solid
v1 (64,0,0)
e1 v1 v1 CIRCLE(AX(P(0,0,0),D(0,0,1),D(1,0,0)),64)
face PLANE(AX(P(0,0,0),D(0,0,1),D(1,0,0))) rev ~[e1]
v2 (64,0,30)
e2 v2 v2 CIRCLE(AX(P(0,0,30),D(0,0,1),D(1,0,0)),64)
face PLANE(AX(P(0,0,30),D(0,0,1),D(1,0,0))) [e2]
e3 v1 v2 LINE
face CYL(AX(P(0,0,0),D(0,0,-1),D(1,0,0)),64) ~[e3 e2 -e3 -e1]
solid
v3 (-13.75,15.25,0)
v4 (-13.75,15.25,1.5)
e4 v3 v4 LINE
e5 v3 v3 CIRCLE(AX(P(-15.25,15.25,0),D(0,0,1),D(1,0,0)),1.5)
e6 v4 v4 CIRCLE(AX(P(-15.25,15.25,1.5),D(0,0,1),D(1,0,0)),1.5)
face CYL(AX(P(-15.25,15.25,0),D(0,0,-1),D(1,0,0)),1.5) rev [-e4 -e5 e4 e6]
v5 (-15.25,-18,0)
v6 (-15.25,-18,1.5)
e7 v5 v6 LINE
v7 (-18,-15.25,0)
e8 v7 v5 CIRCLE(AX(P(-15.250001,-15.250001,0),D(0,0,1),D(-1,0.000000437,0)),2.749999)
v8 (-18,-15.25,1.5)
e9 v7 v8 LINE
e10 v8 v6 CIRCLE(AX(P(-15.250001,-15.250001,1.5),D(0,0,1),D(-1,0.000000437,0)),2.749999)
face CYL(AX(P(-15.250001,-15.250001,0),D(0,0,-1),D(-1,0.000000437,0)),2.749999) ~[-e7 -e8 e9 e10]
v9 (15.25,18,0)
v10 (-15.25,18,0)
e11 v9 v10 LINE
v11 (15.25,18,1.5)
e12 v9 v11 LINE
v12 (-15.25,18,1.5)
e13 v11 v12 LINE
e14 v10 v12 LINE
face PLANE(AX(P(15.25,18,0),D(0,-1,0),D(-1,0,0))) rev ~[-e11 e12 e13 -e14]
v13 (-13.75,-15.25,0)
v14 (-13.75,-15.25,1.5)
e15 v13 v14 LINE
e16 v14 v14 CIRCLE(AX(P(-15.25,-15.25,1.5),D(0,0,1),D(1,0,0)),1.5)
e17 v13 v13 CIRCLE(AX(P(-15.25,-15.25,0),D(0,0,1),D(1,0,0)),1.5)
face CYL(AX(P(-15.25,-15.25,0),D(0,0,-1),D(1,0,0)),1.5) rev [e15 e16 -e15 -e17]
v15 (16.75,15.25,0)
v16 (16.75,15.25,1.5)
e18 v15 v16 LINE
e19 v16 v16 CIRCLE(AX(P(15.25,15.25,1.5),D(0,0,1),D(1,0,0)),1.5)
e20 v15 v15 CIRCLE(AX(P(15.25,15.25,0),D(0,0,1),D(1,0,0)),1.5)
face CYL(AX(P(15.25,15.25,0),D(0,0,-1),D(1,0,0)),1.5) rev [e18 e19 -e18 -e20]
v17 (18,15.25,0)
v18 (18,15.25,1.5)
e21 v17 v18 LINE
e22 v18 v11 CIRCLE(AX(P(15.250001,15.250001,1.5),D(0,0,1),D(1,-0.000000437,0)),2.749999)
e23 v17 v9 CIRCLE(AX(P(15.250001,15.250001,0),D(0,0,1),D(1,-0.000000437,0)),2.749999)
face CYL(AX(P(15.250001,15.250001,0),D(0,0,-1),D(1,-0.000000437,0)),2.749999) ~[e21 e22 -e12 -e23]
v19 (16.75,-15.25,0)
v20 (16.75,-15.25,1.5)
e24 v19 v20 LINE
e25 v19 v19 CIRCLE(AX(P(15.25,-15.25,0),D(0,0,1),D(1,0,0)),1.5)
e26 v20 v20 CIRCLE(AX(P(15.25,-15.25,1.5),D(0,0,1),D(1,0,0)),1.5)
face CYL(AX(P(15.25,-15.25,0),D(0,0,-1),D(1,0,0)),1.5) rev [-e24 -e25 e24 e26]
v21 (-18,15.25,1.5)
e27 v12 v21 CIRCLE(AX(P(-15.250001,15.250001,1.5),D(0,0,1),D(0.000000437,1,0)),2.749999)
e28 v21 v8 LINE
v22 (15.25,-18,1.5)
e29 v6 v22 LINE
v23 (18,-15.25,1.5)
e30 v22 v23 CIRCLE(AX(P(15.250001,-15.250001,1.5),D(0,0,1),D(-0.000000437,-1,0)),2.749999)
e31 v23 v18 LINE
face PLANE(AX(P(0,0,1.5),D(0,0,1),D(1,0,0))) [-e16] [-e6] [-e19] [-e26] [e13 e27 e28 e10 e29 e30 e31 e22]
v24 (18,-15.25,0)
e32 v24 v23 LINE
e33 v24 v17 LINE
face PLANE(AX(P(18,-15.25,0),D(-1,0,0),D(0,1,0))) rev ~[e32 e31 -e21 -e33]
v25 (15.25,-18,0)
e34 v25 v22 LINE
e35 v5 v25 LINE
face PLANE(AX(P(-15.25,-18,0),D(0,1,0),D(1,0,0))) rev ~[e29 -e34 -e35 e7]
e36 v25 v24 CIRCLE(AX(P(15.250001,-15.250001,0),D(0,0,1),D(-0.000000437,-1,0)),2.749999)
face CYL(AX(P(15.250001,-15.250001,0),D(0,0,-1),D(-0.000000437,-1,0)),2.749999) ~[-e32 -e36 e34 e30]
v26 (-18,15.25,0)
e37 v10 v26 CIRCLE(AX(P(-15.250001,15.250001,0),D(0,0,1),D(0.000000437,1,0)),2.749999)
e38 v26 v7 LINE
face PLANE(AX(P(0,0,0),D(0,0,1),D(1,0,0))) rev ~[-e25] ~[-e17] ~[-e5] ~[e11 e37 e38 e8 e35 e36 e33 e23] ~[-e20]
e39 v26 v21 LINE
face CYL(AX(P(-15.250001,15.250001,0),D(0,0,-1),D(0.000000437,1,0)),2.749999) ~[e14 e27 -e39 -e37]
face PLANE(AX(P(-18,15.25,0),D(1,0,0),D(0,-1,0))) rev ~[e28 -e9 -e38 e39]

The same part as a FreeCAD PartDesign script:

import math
import FreeCAD as App
import Part
import Sketcher

V = App.Vector

doc = App.newDocument("Part")
body = doc.addObject("PartDesign::Body", "Body")

# Sketch on XY plane
sketch1 = body.newObject("Sketcher::SketchObject", "Sketch")
sketch1.AttachmentSupport = (doc.getObject("XY_Plane"), [""])
sketch1.MapMode = "FlatFace"
sketch1.addGeometry(Part.ArcOfCircle(Part.Circle(V(-15.3, 15.3, 0), V(0, 0, 1), 2.7), math.radians(90), math.radians(180)), False)
sketch1.addGeometry(Part.LineSegment(V(-18, 15.2, 0), V(-18, -15.2, 0)), False)
sketch1.addGeometry(Part.ArcOfCircle(Part.Circle(V(-15.3, -15.3, 0), V(0, 0, 1), 2.7), math.radians(180), math.radians(270)), False)
sketch1.addGeometry(Part.LineSegment(V(-15.2, -18, 0), V(15.2, -18, 0)), False)
sketch1.addGeometry(Part.ArcOfCircle(Part.Circle(V(15.3, -15.3, 0), V(0, 0, 1), 2.7), math.radians(-90), math.radians(0)), False)
sketch1.addGeometry(Part.LineSegment(V(18, -15.2, 0), V(18, 15.2, 0)), False)
sketch1.addGeometry(Part.ArcOfCircle(Part.Circle(V(15.3, 15.3, 0), V(0, 0, 1), 2.7), math.radians(0), math.radians(90)), False)
sketch1.addGeometry(Part.LineSegment(V(15.2, 18, 0), V(-15.2, 18, 0)), False)
sketch1.addGeometry(Part.Circle(V(-15.2, -15.2, 0), V(0, 0, 1), 1.5), False)
sketch1.addGeometry(Part.Circle(V(15.2, -15.2, 0), V(0, 0, 1), 1.5), False)
sketch1.addGeometry(Part.Circle(V(-15.2, 15.2, 0), V(0, 0, 1), 1.5), False)
sketch1.addGeometry(Part.Circle(V(15.2, 15.2, 0), V(0, 0, 1), 1.5), False)
sketch1.addConstraint(Sketcher.Constraint("Tangent", 0, 2, 1, 1))
sketch1.addConstraint(Sketcher.Constraint("Tangent", 1, 2, 2, 1))
sketch1.addConstraint(Sketcher.Constraint("Tangent", 2, 2, 3, 1))
sketch1.addConstraint(Sketcher.Constraint("Tangent", 3, 2, 4, 1))
sketch1.addConstraint(Sketcher.Constraint("Tangent", 4, 2, 5, 1))
sketch1.addConstraint(Sketcher.Constraint("Tangent", 5, 2, 6, 1))
sketch1.addConstraint(Sketcher.Constraint("Tangent", 6, 2, 7, 1))
sketch1.addConstraint(Sketcher.Constraint("Tangent", 7, 2, 0, 1))
sketch1.addConstraint(Sketcher.Constraint("Vertical", 1))
sketch1.addConstraint(Sketcher.Constraint("Horizontal", 3))
sketch1.addConstraint(Sketcher.Constraint("Vertical", 5))
sketch1.addConstraint(Sketcher.Constraint("Horizontal", 7))
sketch1.addConstraint(Sketcher.Constraint("Coincident", 8, 3, 2, 3))
sketch1.addConstraint(Sketcher.Constraint("Coincident", 9, 3, 4, 3))
sketch1.addConstraint(Sketcher.Constraint("Coincident", 10, 3, 0, 3))
sketch1.addConstraint(Sketcher.Constraint("Coincident", 11, 3, 6, 3))
sketch1.addConstraint(Sketcher.Constraint("Equal", 0, 2))
sketch1.addConstraint(Sketcher.Constraint("Equal", 2, 4))
sketch1.addConstraint(Sketcher.Constraint("Equal", 4, 6))
sketch1.addConstraint(Sketcher.Constraint("Equal", 8, 9))
sketch1.addConstraint(Sketcher.Constraint("Equal", 9, 10))
sketch1.addConstraint(Sketcher.Constraint("Equal", 10, 11))
sketch1.addConstraint(Sketcher.Constraint("Symmetric", 0, 3, 4, 3, -1, 1))
sketch1.addConstraint(Sketcher.Constraint("Equal", 7, 1))
sketch1.addConstraint(Sketcher.Constraint("Diameter", 8, 3.0))
sketch1.addConstraint(Sketcher.Constraint("Radius", 0, 2.749999))
sketch1.addConstraint(Sketcher.Constraint("DistanceX", 3, 1, 3, 2, 30.5))
pad1 = body.newObject("PartDesign::Pad", "Pad")
pad1.Profile = sketch1
pad1.Length = 1.5
body2 = doc.addObject("PartDesign::Body", "Body001")

# Sketch on XY plane
sketch2 = body2.newObject("Sketcher::SketchObject", "Sketch001")
sketch2.AttachmentSupport = (doc.getObject("XY_Plane001"), [""])
sketch2.MapMode = "FlatFace"
sketch2.addGeometry(Part.Circle(V(0, 0, 0), V(0, 0, 1), 64), False)
sketch2.addConstraint(Sketcher.Constraint("Coincident", 0, 3, -1, 1))
sketch2.addConstraint(Sketcher.Constraint("Diameter", 0, 128.0))
pad2 = body2.newObject("PartDesign::Pad", "Pad001")
pad2.Profile = sketch2
pad2.Length = 30

doc.recompute()
